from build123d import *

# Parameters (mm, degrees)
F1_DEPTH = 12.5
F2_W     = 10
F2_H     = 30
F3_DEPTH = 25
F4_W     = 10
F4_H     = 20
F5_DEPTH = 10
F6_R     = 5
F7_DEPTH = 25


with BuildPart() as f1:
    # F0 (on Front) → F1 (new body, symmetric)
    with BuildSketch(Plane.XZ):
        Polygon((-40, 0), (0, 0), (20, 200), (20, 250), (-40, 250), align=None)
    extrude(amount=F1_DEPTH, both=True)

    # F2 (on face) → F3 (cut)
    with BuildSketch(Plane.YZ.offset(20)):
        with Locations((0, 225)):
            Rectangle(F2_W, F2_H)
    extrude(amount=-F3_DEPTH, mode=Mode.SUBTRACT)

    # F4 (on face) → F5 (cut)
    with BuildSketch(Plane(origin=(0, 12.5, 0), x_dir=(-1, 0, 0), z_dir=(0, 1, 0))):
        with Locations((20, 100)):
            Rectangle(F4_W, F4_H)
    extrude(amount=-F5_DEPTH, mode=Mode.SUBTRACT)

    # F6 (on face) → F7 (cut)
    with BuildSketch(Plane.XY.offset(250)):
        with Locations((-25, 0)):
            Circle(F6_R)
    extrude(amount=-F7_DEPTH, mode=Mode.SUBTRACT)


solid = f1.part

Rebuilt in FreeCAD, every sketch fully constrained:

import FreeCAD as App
import Part
import Sketcher

V = App.Vector


def add_polygon(sketch, points):
    """Adds a closed chain of lines whose ends are joined by coincident constraints."""
    first, n = sketch.GeometryCount, len(points)
    for a, b in zip(points, points[1:] + points[:1]):
        sketch.addGeometry(Part.LineSegment(App.Vector(*a, 0), App.Vector(*b, 0)), False)
    for i in range(n):
        sketch.addConstraint(Sketcher.Constraint("Coincident", first + i, 2, first + (i + 1) % n, 1))

doc = App.newDocument("Part")
body = doc.addObject("PartDesign::Body", "Body")

sketch1 = doc.addObject("Sketcher::SketchObject", "Sketch")
body.addObject(sketch1)
sketch1.AttachmentSupport = (doc.XZ_Plane, [""])
sketch1.MapMode = "FlatFace"
add_polygon(sketch1, [(-40, 0), (0, 0), (20, 200), (20, 250), (-40, 250)])
sketch1.addConstraint(Sketcher.Constraint("Horizontal", 0))
sketch1.addConstraint(Sketcher.Constraint("Vertical", 2))
sketch1.addConstraint(Sketcher.Constraint("Horizontal", 3))
sketch1.addConstraint(Sketcher.Constraint("Vertical", 4))
sketch1.addConstraint(Sketcher.Constraint("Coincident", 0, 2, -1, 1))
sketch1.addConstraint(Sketcher.Constraint("DistanceX", 0, 1, 0, 2, 40.0))
sketch1.addConstraint(Sketcher.Constraint("DistanceX", 3, 2, 3, 1, 60.0))
sketch1.addConstraint(Sketcher.Constraint("DistanceY", 2, 1, 2, 2, 50.0))
sketch1.addConstraint(Sketcher.Constraint("DistanceY", 4, 2, 4, 1, 250.0))
pad1 = doc.addObject("PartDesign::Pad", "Pad")
body.addObject(pad1)
pad1.Profile = sketch1
pad1.Length = 25
pad1.Midplane = True

sketch2 = doc.addObject("Sketcher::SketchObject", "Sketch001")
body.addObject(sketch2)
sketch2.AttachmentSupport = (doc.YZ_Plane, [""])
sketch2.MapMode = "FlatFace"
sketch2.AttachmentOffset = App.Placement(V(0, 0, 20), App.Rotation())
add_polygon(sketch2, [(-5, 240), (-5, 210), (5, 210), (5, 240)])
sketch2.addConstraint(Sketcher.Constraint("Vertical", 0))
sketch2.addConstraint(Sketcher.Constraint("Horizontal", 1))
sketch2.addConstraint(Sketcher.Constraint("Vertical", 2))
sketch2.addConstraint(Sketcher.Constraint("Horizontal", 3))
sketch2.addConstraint(Sketcher.Constraint("DistanceX", 1, 1, 1, 2, 10.0))
sketch2.addConstraint(Sketcher.Constraint("DistanceY", 0, 2, 0, 1, 30.0))
sketch2.addConstraint(Sketcher.Constraint("DistanceX", 0, 2, -1, 1, 5.0))
sketch2.addConstraint(Sketcher.Constraint("DistanceY", -1, 1, 0, 2, 210.0))
pocket1 = doc.addObject("PartDesign::Pocket", "Pocket")
body.addObject(pocket1)
pocket1.Profile = sketch2
pocket1.Length = 25

sketch3 = doc.addObject("Sketcher::SketchObject", "Sketch002")
body.addObject(sketch3)
sketch3.AttachmentSupport = (doc.XZ_Plane, [""])
sketch3.MapMode = "FlatFace"
sketch3.AttachmentOffset = App.Placement(V(0, 0, -12.5), App.Rotation())
add_polygon(sketch3, [(-15, 110), (-15, 90), (-25, 90), (-25, 110)])
sketch3.addConstraint(Sketcher.Constraint("Vertical", 0))
sketch3.addConstraint(Sketcher.Constraint("Horizontal", 1))
sketch3.addConstraint(Sketcher.Constraint("Vertical", 2))
sketch3.addConstraint(Sketcher.Constraint("Horizontal", 3))
sketch3.addConstraint(Sketcher.Constraint("DistanceX", 1, 2, 1, 1, 10.0))
sketch3.addConstraint(Sketcher.Constraint("DistanceY", 0, 2, 0, 1, 20.0))
sketch3.addConstraint(Sketcher.Constraint("DistanceX", 0, 2, -1, 1, 15.0))
sketch3.addConstraint(Sketcher.Constraint("DistanceY", -1, 1, 0, 2, 90.0))
pocket2 = doc.addObject("PartDesign::Pocket", "Pocket001")
body.addObject(pocket2)
pocket2.Profile = sketch3
pocket2.Length = 10
pocket2.Reversed = True

sketch4 = doc.addObject("Sketcher::SketchObject", "Sketch003")
body.addObject(sketch4)
sketch4.AttachmentSupport = (doc.XY_Plane, [""])
sketch4.MapMode = "FlatFace"
sketch4.AttachmentOffset = App.Placement(V(0, 0, 250), App.Rotation())
sketch4.addGeometry(Part.Circle(V(-25, 0, 0), V(0, 0, 1), 5), False)
sketch4.addConstraint(Sketcher.Constraint("PointOnObject", 0, 3, -1))
sketch4.addConstraint(Sketcher.Constraint("Diameter", 0, 10.0))
sketch4.addConstraint(Sketcher.Constraint("DistanceX", 0, 3, -1, 1, 25.0))
pocket3 = doc.addObject("PartDesign::Pocket", "Pocket002")
body.addObject(pocket3)
pocket3.Profile = sketch4
pocket3.Length = 25

doc.recompute()
